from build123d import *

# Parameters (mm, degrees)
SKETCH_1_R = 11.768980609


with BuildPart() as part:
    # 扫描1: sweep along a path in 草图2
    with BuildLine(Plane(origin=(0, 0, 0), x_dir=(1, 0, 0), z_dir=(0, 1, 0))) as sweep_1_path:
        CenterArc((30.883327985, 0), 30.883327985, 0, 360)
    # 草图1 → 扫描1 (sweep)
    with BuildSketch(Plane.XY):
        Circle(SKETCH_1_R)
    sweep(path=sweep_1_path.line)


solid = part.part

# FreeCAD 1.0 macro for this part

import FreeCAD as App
import Part
import Sketcher
from FreeCAD import Vector
Q = App.Units.Quantity

doc = App.newDocument("Part")
body = doc.addObject("PartDesign::Body", "Body")

sketch1 = doc.addObject("Sketcher::SketchObject", "Sketch")
body.addObject(sketch1)
sketch1.AttachmentSupport = (doc.XY_Plane, [""])
sketch1.MapMode = "FlatFace"
sketch1.addGeometry(Part.Circle(Vector(0, 0, 0), Vector(0, 0, 1), 11.768981), False)
sketch1.addConstraint([
    Sketcher.Constraint("Coincident", 0, 3, -1, 1),
    Sketcher.Constraint("Diameter", 0, Q("23.537961 mm")),
])

sketch2 = doc.addObject("Sketcher::SketchObject", "Sketch001")
body.addObject(sketch2)
sketch2.AttachmentSupport = (doc.XZ_Plane, [""])
sketch2.MapMode = "FlatFace"
sketch2.addGeometry(Part.Circle(Vector(30.883328, 0, 0), Vector(0, 0, 1), 30.883328), False)
sketch2.addConstraint([
    Sketcher.Constraint("PointOnObject", 0, 3, -1),
    Sketcher.Constraint("Diameter", 0, Q("61.766656 mm")),
    Sketcher.Constraint("DistanceX", -1, 1, 0, 3, Q("30.883328 mm")),
])
doc.recompute()

additivepipe = doc.addObject("PartDesign::AdditivePipe", "AdditivePipe")
body.addObject(additivepipe)
additivepipe.Profile = sketch1
additivepipe.Spine = (sketch2, ["Edge1"])

doc.recompute()
